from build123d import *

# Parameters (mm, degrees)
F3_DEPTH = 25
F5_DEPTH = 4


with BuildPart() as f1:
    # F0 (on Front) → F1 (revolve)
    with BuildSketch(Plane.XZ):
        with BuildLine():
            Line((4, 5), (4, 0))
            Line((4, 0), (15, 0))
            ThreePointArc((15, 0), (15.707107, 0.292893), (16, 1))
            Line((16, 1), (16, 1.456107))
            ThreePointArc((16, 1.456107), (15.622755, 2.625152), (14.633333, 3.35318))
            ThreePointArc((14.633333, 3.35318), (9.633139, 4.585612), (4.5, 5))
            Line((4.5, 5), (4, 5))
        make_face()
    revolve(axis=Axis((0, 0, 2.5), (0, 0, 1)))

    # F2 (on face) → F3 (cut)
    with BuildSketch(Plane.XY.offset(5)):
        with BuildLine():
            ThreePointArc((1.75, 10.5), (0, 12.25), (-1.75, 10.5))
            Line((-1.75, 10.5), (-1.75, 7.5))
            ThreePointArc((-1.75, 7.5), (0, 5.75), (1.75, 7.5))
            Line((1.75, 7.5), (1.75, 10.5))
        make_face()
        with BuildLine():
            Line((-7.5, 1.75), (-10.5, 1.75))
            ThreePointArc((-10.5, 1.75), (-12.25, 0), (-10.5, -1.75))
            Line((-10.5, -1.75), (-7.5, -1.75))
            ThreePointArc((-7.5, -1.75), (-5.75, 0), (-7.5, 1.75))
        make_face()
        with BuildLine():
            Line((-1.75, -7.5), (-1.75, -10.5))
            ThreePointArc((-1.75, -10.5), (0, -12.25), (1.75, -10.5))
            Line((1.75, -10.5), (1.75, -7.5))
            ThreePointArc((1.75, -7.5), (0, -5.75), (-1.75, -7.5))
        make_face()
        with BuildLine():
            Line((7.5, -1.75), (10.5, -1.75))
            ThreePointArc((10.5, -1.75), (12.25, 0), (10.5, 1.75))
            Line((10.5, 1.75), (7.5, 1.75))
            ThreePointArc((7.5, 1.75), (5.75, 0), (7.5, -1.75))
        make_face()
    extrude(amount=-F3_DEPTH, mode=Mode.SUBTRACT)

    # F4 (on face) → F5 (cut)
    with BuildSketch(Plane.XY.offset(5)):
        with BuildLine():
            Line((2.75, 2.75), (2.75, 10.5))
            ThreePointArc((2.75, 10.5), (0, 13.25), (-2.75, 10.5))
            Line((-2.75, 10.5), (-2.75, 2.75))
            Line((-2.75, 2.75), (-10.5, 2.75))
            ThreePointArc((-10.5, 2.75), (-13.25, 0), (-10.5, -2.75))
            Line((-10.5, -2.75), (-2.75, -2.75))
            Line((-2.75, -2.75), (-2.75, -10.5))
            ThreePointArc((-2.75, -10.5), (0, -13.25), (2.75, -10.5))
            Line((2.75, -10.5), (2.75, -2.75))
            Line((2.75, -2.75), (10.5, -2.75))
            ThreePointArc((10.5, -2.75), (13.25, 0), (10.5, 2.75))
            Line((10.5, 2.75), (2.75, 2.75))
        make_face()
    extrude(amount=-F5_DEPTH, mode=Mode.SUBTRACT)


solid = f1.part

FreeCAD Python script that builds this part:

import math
import FreeCAD as App
import Part
import Sketcher
from FreeCAD import Vector
Q = App.Units.Quantity

doc = App.newDocument("Part")
body = doc.addObject("PartDesign::Body", "Body")

sketch1 = body.newObject("Sketcher::SketchObject", "Sketch")
sketch1.AttachmentSupport = (doc.getObject("XZ_Plane"), [""])
sketch1.MapMode = "FlatFace"
sketch1.addGeometry([
    Part.LineSegment(Vector(4, 5, 0), Vector(4, 0, 0)),
    Part.LineSegment(Vector(4, 0, 0), Vector(15, 0, 0)),
    Part.ArcOfCircle(Part.Circle(Vector(15.000001, 0.999999, 0), Vector(0, 0, 1), 0.999999), math.radians(-90.000043), math.radians(0.000043)),
    Part.LineSegment(Vector(16, 1, 0), Vector(16, 1.456107, 0)),
    Part.ArcOfCircle(Part.Circle(Vector(14.000002, 1.456108, 0), Vector(0, 0, 1), 1.999998), math.radians(-0.000021), math.radians(71.538598)),
    Part.ArcOfCircle(Part.Circle(Vector(4.500002, -26.999983, 0), Vector(0, 0, 1), 31.999983), math.radians(71.538535), math.radians(90.000003)),
    Part.LineSegment(Vector(4.5, 5, 0), Vector(4, 5, 0)),
], False)
sketch1.addConstraint([
    Sketcher.Constraint("Coincident", 0, 2, 1, 1),
    Sketcher.Constraint("Tangent", 1, 2, 2, 1),
    Sketcher.Constraint("Tangent", 2, 2, 3, 1),
    Sketcher.Constraint("Tangent", 3, 2, 4, 1),
    Sketcher.Constraint("Tangent", 4, 2, 5, 1),
    Sketcher.Constraint("Tangent", 5, 2, 6, 1),
    Sketcher.Constraint("Coincident", 6, 2, 0, 1),
    Sketcher.Constraint("Vertical", 0),
    Sketcher.Constraint("Horizontal", 1),
    Sketcher.Constraint("Vertical", 3),
    Sketcher.Constraint("Horizontal", 6),
    Sketcher.Constraint("PointOnObject", 0, 2, -1),
    Sketcher.Constraint("Radius", 2, Q("0.999999 mm")),
    Sketcher.Constraint("DistanceX", 1, 1, 1, 2, Q("11 mm")),
    Sketcher.Constraint("DistanceY", 0, 2, 0, 1, Q("5 mm")),
    Sketcher.Constraint("DistanceX", 6, 2, 6, 1, Q("0.5 mm")),
    Sketcher.Constraint("DistanceX", -1, 1, 2, 3, Q("15.000001 mm")),
    Sketcher.Constraint("DistanceX", 4, 3, 2, 3, Q("0.999999 mm")),
    Sketcher.Constraint("Radius", 5, Q("31.999983 mm")),
])
revolution = body.newObject("PartDesign::Revolution", "Revolution")
revolution.Profile = sketch1
revolution.ReferenceAxis = (sketch1, ["V_Axis"])
revolution.Angle = 360

sketch2 = body.newObject("Sketcher::SketchObject", "Sketch001")
sketch2.AttachmentSupport = (doc.getObject("XY_Plane"), [""])
sketch2.MapMode = "FlatFace"
sketch2.AttachmentOffset = App.Placement(Vector(0, 0, 5), App.Rotation())
sketch2.addGeometry([
    Part.ArcOfCircle(Part.Circle(Vector(0, 10.5, 0), Vector(0, 0, 1), 1.75), math.radians(0), math.radians(180)),
    Part.LineSegment(Vector(-1.75, 10.5, 0), Vector(-1.75, 7.5, 0)),
    Part.ArcOfCircle(Part.Circle(Vector(0, 7.5, 0), Vector(0, 0, 1), 1.75), math.radians(180), math.radians(360)),
    Part.LineSegment(Vector(1.75, 7.5, 0), Vector(1.75, 10.5, 0)),
    Part.LineSegment(Vector(-7.5, 1.75, 0), Vector(-10.5, 1.75, 0)),
    Part.ArcOfCircle(Part.Circle(Vector(-10.5, 0, 0), Vector(0, 0, 1), 1.75), math.radians(90), math.radians(270)),
    Part.LineSegment(Vector(-10.5, -1.75, 0), Vector(-7.5, -1.75, 0)),
    Part.ArcOfCircle(Part.Circle(Vector(-7.5, 0, 0), Vector(0, 0, 1), 1.75), math.radians(-90), math.radians(90)),
    Part.LineSegment(Vector(-1.75, -7.5, 0), Vector(-1.75, -10.5, 0)),
    Part.ArcOfCircle(Part.Circle(Vector(0, -10.5, 0), Vector(0, 0, 1), 1.75), math.radians(180), math.radians(360)),
    Part.LineSegment(Vector(1.75, -10.5, 0), Vector(1.75, -7.5, 0)),
    Part.ArcOfCircle(Part.Circle(Vector(0, -7.5, 0), Vector(0, 0, 1), 1.75), math.radians(0), math.radians(180)),
    Part.LineSegment(Vector(7.5, -1.75, 0), Vector(10.5, -1.75, 0)),
    Part.ArcOfCircle(Part.Circle(Vector(10.5, 0, 0), Vector(0, 0, 1), 1.75), math.radians(-90), math.radians(90)),
    Part.LineSegment(Vector(10.5, 1.75, 0), Vector(7.5, 1.75, 0)),
    Part.ArcOfCircle(Part.Circle(Vector(7.5, 0, 0), Vector(0, 0, 1), 1.75), math.radians(90), math.radians(270)),
], False)
sketch2.addConstraint([
    Sketcher.Constraint("Tangent", 0, 2, 1, 1),
    Sketcher.Constraint("Tangent", 1, 2, 2, 1),
    Sketcher.Constraint("Tangent", 2, 2, 3, 1),
    Sketcher.Constraint("Tangent", 3, 2, 0, 1),
    Sketcher.Constraint("Tangent", 4, 2, 5, 1),
    Sketcher.Constraint("Tangent", 5, 2, 6, 1),
    Sketcher.Constraint("Tangent", 6, 2, 7, 1),
    Sketcher.Constraint("Tangent", 7, 2, 4, 1),
    Sketcher.Constraint("Tangent", 8, 2, 9, 1),
    Sketcher.Constraint("Tangent", 9, 2, 10, 1),
    Sketcher.Constraint("Tangent", 10, 2, 11, 1),
    Sketcher.Constraint("Tangent", 11, 2, 8, 1),
    Sketcher.Constraint("Tangent", 12, 2, 13, 1),
    Sketcher.Constraint("Tangent", 13, 2, 14, 1),
    Sketcher.Constraint("Tangent", 14, 2, 15, 1),
    Sketcher.Constraint("Tangent", 15, 2, 12, 1),
    Sketcher.Constraint("Vertical", 1),
    Sketcher.Constraint("Vertical", 3),
    Sketcher.Constraint("Horizontal", 4),
    Sketcher.Constraint("Horizontal", 6),
    Sketcher.Constraint("Vertical", 8),
    Sketcher.Constraint("Vertical", 10),
    Sketcher.Constraint("Horizontal", 12),
    Sketcher.Constraint("Horizontal", 14),
    Sketcher.Constraint("Equal", 2, 5),
    Sketcher.Constraint("Equal", 7, 9),
    Sketcher.Constraint("Equal", 11, 13),
    Sketcher.Constraint("Symmetric", 0, 3, 9, 3, -1, 1),
    Sketcher.Constraint("Symmetric", 5, 3, 13, 3, -1, 1),
    Sketcher.Constraint("Symmetric", 7, 3, 15, 3, -2),
    Sketcher.Constraint("Symmetric", 2, 3, 11, 3, -1),
    Sketcher.Constraint("Equal", 14, 1),
    Sketcher.Constraint("DistanceX", 4, 2, 4, 1, Q("3 mm")),
    Sketcher.Constraint("Radius", 0, Q("1.75 mm")),
    Sketcher.Constraint("DistanceY", 9, 3, 2, 3, Q("18 mm")),
    Sketcher.Constraint("DistanceX", 7, 3, 13, 3, Q("18 mm")),
])
pocket1 = body.newObject("PartDesign::Pocket", "Pocket")
pocket1.Profile = sketch2
pocket1.Length = 25

sketch3 = body.newObject("Sketcher::SketchObject", "Sketch002")
sketch3.AttachmentSupport = (doc.getObject("XY_Plane"), [""])
sketch3.MapMode = "FlatFace"
sketch3.AttachmentOffset = App.Placement(Vector(0, 0, 5), App.Rotation())
sketch3.addGeometry([
    Part.LineSegment(Vector(2.75, 2.75, 0), Vector(2.75, 10.5, 0)),
    Part.ArcOfCircle(Part.Circle(Vector(0, 10.5, 0), Vector(0, 0, 1), 2.75), math.radians(0), math.radians(180)),
    Part.LineSegment(Vector(-2.75, 10.5, 0), Vector(-2.75, 2.75, 0)),
    Part.LineSegment(Vector(-2.75, 2.75, 0), Vector(-10.5, 2.75, 0)),
    Part.ArcOfCircle(Part.Circle(Vector(-10.5, 0, 0), Vector(0, 0, 1), 2.75), math.radians(90), math.radians(270)),
    Part.LineSegment(Vector(-10.5, -2.75, 0), Vector(-2.75, -2.75, 0)),
    Part.LineSegment(Vector(-2.75, -2.75, 0), Vector(-2.75, -10.5, 0)),
    Part.ArcOfCircle(Part.Circle(Vector(0, -10.5, 0), Vector(0, 0, 1), 2.75), math.radians(180), math.radians(360)),
    Part.LineSegment(Vector(2.75, -10.5, 0), Vector(2.75, -2.75, 0)),
    Part.LineSegment(Vector(2.75, -2.75, 0), Vector(10.5, -2.75, 0)),
    Part.ArcOfCircle(Part.Circle(Vector(10.5, 0, 0), Vector(0, 0, 1), 2.75), math.radians(-90), math.radians(90)),
    Part.LineSegment(Vector(10.5, 2.75, 0), Vector(2.75, 2.75, 0)),
], False)
sketch3.addConstraint([
    Sketcher.Constraint("Tangent", 0, 2, 1, 1),
    Sketcher.Constraint("Tangent", 1, 2, 2, 1),
    Sketcher.Constraint("Coincident", 2, 2, 3, 1),
    Sketcher.Constraint("Tangent", 3, 2, 4, 1),
    Sketcher.Constraint("Tangent", 4, 2, 5, 1),
    Sketcher.Constraint("Coincident", 5, 2, 6, 1),
    Sketcher.Constraint("Tangent", 6, 2, 7, 1),
    Sketcher.Constraint("Tangent", 7, 2, 8, 1),
    Sketcher.Constraint("Coincident", 8, 2, 9, 1),
    Sketcher.Constraint("Tangent", 9, 2, 10, 1),
    Sketcher.Constraint("Tangent", 10, 2, 11, 1),
    Sketcher.Constraint("Coincident", 11, 2, 0, 1),
    Sketcher.Constraint("Vertical", 0),
    Sketcher.Constraint("Vertical", 2),
    Sketcher.Constraint("Horizontal", 3),
    Sketcher.Constraint("Horizontal", 5),
    Sketcher.Constraint("Vertical", 6),
    Sketcher.Constraint("Vertical", 8),
    Sketcher.Constraint("Horizontal", 9),
    Sketcher.Constraint("Horizontal", 11),
    Sketcher.Constraint("Equal", 1, 4),
    Sketcher.Constraint("Equal", 4, 7),
    Sketcher.Constraint("Equal", 7, 10),
    Sketcher.Constraint("Symmetric", 1, 3, 7, 3, -1, 1),
    Sketcher.Constraint("Symmetric", 4, 3, 10, 3, -1, 1),
    Sketcher.Constraint("Symmetric", 5, 2, 8, 2, -2),
    Sketcher.Constraint("Equal", 11, 0),
    Sketcher.Constraint("Radius", 1, Q("2.75 mm")),
    Sketcher.Constraint("DistanceY", 7, 3, 1, 3, Q("21 mm")),
])
pocket2 = body.newObject("PartDesign::Pocket", "Pocket001")
pocket2.Profile = sketch3
pocket2.Length = 4

doc.recompute()
